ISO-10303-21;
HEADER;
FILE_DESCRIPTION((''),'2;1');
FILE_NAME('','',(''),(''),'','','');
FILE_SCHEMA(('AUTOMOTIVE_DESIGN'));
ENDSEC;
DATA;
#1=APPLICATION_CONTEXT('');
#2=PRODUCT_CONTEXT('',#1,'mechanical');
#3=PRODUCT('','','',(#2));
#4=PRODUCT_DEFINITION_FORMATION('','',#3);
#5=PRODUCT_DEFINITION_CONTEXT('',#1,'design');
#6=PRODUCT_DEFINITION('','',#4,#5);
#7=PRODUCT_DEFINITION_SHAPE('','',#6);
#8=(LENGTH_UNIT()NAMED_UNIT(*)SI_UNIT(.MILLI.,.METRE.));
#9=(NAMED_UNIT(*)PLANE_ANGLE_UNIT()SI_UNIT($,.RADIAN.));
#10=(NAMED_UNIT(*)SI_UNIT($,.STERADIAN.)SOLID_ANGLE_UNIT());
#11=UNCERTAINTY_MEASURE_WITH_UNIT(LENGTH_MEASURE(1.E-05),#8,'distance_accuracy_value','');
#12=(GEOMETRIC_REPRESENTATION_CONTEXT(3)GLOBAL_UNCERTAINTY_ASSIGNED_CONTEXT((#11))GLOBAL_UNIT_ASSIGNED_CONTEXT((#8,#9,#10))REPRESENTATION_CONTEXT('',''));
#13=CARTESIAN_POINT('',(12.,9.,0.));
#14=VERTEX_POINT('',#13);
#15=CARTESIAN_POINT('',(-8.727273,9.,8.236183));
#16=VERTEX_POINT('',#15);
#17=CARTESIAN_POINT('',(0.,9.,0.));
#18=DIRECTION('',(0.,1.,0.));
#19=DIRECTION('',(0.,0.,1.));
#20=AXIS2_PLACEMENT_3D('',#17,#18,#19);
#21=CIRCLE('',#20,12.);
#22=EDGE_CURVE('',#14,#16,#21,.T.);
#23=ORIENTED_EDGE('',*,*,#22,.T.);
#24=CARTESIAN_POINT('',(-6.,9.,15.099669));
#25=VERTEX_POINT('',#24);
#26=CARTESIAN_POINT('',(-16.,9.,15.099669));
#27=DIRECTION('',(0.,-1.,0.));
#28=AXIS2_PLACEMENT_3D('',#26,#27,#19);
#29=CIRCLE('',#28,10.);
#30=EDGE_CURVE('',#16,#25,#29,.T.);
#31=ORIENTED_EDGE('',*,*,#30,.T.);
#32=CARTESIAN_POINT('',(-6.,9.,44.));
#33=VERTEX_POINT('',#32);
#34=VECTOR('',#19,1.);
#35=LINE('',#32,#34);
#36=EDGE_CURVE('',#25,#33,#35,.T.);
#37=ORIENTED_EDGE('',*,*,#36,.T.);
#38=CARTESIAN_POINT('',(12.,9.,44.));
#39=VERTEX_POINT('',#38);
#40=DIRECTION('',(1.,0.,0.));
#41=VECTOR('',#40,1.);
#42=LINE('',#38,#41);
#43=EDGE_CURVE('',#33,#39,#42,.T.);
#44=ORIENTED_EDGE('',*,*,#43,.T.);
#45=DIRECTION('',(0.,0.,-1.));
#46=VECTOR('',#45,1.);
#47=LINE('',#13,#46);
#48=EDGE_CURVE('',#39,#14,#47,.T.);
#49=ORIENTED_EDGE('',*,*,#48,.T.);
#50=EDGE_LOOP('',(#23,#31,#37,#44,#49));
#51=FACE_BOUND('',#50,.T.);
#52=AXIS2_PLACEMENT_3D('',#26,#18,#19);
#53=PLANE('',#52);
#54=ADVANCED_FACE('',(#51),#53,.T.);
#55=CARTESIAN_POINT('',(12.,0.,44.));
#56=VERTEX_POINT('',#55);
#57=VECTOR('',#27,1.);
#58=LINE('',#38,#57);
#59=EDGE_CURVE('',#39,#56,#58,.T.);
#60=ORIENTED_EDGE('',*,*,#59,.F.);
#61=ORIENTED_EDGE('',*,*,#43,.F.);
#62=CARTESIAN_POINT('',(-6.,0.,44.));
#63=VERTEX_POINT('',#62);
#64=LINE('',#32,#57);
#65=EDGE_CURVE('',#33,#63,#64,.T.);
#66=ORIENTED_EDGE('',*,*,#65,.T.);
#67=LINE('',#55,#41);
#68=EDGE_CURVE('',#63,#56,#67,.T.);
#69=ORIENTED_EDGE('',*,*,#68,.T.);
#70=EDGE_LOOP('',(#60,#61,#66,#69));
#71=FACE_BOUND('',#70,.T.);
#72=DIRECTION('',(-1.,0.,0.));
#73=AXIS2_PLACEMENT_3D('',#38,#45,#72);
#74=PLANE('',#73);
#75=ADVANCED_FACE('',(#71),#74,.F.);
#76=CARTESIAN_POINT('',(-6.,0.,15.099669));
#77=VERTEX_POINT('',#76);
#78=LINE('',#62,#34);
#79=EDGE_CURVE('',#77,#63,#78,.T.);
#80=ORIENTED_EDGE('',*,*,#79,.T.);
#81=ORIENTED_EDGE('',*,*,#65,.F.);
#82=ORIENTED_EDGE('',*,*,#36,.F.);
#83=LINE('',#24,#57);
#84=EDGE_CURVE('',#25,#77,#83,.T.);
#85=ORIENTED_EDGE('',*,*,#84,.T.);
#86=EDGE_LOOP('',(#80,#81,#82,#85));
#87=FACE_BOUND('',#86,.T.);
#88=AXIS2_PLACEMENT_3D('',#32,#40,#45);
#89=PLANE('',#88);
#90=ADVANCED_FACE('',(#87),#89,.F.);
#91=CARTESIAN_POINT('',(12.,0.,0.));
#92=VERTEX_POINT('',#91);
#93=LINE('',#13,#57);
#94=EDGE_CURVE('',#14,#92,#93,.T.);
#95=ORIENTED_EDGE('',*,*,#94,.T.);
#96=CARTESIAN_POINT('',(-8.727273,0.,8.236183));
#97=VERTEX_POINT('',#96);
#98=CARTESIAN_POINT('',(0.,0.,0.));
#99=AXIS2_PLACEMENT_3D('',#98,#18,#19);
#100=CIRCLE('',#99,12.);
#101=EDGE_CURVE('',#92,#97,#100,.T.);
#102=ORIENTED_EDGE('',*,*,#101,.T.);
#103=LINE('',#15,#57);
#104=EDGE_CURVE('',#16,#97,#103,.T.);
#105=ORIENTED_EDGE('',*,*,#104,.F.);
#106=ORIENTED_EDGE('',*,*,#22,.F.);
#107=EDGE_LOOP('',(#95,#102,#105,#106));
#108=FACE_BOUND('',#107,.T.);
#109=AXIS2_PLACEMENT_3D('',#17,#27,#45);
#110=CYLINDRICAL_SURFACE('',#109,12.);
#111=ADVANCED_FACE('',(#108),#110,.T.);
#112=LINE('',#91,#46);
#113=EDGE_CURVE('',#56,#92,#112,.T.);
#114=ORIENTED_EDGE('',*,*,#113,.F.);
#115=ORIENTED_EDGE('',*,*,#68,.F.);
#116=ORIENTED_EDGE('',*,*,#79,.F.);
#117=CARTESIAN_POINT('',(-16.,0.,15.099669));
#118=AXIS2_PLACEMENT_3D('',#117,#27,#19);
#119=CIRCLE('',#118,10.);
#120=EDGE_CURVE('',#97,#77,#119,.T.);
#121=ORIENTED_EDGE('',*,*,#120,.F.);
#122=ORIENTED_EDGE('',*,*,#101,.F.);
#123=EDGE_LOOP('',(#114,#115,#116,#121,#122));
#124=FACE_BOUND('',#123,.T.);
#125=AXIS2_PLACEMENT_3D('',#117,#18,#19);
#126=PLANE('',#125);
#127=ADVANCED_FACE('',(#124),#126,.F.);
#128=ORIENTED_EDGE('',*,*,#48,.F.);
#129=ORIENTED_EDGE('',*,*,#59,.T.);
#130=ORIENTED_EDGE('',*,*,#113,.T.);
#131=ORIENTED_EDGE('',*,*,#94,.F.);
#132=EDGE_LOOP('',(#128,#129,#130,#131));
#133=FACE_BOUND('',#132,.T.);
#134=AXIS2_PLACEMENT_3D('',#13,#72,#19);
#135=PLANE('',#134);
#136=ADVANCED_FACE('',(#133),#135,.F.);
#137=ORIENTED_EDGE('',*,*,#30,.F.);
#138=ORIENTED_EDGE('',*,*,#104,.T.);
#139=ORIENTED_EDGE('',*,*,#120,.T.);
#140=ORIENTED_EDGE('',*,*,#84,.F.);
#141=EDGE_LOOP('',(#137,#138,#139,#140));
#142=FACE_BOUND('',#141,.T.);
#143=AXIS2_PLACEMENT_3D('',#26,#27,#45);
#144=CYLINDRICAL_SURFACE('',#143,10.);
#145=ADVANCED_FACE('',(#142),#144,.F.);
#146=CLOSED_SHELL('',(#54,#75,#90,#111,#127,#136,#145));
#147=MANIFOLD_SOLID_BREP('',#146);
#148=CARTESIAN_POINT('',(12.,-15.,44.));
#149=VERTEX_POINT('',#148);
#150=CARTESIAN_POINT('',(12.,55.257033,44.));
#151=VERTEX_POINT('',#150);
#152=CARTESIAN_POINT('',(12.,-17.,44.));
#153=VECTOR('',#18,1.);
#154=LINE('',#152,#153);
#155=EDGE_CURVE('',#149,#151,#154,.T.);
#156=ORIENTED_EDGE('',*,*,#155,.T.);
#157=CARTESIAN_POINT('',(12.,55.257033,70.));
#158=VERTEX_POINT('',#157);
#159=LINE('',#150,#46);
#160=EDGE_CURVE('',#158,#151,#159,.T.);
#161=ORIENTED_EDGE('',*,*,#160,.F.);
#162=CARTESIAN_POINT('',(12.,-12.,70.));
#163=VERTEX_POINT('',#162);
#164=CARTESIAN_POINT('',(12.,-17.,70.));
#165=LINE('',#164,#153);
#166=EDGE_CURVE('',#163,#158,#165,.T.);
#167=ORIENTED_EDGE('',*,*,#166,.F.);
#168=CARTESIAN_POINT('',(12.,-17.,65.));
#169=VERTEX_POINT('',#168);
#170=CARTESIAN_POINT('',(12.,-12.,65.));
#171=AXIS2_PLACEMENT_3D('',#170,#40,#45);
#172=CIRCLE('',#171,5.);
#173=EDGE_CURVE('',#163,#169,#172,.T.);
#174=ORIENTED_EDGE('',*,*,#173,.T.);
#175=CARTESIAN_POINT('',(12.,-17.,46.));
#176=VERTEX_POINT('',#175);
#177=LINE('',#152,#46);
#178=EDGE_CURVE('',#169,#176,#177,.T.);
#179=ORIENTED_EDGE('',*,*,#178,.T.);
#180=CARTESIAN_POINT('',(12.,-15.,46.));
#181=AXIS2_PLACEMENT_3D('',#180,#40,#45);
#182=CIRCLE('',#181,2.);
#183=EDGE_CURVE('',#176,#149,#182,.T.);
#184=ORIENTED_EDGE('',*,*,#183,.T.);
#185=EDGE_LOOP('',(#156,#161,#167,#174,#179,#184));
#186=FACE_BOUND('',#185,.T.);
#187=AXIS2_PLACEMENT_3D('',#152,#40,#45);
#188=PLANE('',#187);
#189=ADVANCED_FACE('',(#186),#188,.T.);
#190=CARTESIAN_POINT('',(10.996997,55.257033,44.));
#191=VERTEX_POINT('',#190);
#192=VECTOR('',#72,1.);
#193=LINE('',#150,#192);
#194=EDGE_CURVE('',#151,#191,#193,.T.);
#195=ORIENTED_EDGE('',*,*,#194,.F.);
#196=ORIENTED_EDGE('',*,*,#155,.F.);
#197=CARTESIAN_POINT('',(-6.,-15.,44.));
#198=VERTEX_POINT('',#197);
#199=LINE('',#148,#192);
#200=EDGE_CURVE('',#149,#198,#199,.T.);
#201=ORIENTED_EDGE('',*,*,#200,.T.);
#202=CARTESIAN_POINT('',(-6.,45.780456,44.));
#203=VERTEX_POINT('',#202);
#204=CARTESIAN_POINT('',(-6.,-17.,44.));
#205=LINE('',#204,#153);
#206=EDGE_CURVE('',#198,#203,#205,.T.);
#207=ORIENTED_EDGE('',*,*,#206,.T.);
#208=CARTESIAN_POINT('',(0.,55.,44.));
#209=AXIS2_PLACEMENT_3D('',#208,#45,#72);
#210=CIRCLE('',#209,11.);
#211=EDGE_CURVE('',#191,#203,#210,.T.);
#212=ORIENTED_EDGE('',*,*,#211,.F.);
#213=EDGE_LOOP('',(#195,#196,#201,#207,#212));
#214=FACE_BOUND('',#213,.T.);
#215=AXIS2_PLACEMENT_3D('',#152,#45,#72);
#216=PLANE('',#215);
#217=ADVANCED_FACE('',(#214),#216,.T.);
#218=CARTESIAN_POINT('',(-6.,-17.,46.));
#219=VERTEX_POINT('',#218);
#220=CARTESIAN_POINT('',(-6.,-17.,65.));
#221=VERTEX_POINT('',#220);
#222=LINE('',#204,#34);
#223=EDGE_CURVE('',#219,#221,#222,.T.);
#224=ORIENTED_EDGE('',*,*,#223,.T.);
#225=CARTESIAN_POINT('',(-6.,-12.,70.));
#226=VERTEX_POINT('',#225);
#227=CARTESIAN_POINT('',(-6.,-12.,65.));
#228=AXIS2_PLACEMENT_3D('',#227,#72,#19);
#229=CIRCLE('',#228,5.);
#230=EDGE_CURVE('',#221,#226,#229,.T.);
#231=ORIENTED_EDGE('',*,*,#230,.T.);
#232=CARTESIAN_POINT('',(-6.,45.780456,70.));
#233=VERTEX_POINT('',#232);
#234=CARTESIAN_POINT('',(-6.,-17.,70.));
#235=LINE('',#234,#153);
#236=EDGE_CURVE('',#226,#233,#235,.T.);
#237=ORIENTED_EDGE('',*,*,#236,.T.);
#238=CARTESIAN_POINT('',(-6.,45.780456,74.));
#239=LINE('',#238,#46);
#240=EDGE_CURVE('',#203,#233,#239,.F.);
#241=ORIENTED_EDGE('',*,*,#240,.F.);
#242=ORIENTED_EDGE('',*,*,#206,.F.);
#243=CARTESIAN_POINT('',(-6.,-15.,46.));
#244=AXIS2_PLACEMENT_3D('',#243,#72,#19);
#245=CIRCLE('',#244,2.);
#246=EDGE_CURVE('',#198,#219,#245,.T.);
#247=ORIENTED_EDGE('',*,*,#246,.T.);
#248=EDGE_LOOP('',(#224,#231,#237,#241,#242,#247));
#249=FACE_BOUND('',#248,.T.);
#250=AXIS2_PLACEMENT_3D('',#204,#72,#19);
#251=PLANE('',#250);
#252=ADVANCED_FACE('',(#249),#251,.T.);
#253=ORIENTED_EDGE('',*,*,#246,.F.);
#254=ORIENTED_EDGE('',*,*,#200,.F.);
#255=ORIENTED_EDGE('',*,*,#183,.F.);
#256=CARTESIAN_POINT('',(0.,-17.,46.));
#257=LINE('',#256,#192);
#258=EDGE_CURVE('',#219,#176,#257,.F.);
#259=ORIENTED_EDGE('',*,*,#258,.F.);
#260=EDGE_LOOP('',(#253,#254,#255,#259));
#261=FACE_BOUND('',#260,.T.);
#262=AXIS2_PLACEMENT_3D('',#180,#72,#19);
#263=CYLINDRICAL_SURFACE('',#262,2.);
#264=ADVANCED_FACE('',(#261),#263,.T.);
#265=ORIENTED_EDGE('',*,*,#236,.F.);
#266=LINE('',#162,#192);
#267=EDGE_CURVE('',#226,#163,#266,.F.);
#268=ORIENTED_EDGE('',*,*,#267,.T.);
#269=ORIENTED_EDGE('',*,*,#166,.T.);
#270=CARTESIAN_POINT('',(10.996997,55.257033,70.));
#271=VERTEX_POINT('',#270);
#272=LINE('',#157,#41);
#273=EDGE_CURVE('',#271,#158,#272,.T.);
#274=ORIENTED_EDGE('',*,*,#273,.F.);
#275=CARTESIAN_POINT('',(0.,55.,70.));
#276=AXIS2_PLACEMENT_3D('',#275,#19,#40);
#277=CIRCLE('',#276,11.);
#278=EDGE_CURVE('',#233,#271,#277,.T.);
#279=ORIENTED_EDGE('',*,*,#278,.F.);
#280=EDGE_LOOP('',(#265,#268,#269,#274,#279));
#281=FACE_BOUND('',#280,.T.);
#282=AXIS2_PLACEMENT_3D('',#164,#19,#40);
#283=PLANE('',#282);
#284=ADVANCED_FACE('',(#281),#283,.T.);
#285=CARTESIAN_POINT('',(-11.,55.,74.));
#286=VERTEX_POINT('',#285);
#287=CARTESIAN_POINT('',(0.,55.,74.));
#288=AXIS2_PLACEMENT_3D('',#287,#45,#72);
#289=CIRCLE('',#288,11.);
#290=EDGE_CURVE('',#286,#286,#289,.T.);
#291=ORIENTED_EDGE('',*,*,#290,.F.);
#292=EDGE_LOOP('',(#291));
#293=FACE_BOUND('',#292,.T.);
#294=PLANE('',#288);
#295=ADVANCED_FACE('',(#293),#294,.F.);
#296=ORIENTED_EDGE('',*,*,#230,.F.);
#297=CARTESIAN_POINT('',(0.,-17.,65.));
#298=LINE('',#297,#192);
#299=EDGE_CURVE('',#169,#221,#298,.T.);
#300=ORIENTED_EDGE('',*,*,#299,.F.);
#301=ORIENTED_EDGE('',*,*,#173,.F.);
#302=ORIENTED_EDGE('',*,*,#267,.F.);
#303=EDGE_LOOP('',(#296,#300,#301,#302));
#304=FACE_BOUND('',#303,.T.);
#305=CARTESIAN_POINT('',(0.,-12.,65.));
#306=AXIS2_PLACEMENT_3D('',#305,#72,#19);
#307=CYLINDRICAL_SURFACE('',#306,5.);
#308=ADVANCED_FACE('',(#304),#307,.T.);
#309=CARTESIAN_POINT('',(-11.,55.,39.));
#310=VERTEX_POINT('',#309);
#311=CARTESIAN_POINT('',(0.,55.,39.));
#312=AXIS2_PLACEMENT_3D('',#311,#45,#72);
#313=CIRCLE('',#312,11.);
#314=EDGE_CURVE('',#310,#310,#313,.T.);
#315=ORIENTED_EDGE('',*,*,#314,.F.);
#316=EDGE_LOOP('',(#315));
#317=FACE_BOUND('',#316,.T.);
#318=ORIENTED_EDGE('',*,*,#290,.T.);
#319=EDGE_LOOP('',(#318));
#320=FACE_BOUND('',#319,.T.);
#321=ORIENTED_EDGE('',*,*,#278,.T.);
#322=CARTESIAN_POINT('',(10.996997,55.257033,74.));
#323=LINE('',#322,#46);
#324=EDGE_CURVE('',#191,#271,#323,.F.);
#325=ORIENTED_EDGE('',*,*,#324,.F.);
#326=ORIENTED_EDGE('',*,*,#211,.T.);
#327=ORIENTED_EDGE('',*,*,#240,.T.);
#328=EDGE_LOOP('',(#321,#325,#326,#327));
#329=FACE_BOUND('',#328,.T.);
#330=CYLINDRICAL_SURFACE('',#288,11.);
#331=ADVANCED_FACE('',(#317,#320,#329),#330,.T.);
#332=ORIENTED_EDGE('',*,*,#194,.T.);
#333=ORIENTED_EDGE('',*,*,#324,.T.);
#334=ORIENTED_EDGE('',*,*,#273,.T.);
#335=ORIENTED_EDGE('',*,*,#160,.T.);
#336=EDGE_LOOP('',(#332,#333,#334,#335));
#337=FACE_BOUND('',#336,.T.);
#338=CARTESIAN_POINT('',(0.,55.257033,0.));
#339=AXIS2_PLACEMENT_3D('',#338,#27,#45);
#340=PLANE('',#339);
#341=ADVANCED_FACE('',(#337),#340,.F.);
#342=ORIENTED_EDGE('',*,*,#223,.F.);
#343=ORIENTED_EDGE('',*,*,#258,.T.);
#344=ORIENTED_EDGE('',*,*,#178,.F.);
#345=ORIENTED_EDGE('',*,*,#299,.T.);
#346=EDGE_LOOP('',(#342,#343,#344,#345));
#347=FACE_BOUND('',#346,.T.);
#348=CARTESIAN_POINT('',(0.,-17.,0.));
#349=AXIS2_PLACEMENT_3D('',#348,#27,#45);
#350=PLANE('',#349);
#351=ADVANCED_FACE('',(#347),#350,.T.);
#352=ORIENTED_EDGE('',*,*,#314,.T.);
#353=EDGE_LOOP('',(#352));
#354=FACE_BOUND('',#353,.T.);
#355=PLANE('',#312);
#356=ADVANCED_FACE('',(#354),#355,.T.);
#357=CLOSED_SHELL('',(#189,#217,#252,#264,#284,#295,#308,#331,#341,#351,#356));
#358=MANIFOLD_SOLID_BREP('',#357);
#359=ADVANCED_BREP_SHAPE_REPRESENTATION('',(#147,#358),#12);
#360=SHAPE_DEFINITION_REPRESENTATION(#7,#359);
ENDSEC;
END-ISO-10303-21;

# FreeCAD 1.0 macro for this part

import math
import FreeCAD as App
import Part
import Sketcher
Q = App.Units.Quantity


def edges_at(feature, points):
    """Names of the edges that pass closest to the given points."""
    edges = feature.Shape.Edges
    near = lambda p: min(range(len(edges)), key=lambda i: edges[i].distToShape(Part.Vertex(*p))[0])
    return sorted({f"Edge{near(p) + 1}" for p in points})


def add_polygon(sketch, points):
    """Adds a closed chain of lines whose ends are joined by coincident constraints."""
    first, n = sketch.GeometryCount, len(points)
    for a, b in zip(points, points[1:] + points[:1]):
        sketch.addGeometry(Part.LineSegment(App.Vector(*a, 0), App.Vector(*b, 0)), False)
    for i in range(n):
        sketch.addConstraint(Sketcher.Constraint("Coincident", first + i, 2, first + (i + 1) % n, 1))

doc = App.newDocument("Part")
body = doc.addObject("PartDesign::Body", "Body")

sketch1 = doc.addObject("Sketcher::SketchObject", "Sketch")
body.addObject(sketch1)
sketch1.AttachmentSupport = (doc.XZ_Plane, [""])
sketch1.MapMode = "FlatFace"
sketch1.addGeometry(Part.LineSegment(App.Vector(12, 44, 0), App.Vector(12, 0, 0)), False)
sketch1.addGeometry(Part.ArcOfCircle(Part.Circle(App.Vector(0, 0, 0), App.Vector(0, 0, 1), 12), math.radians(137), math.radians(360)), False)
sketch1.addGeometry(Part.ArcOfCircle(Part.Circle(App.Vector(-16, 15, 0), App.Vector(0, 0, 1), 10), math.radians(-43), math.radians(0)), False)
sketch1.addGeometry(Part.LineSegment(App.Vector(-6, 15, 0), App.Vector(-6, 44, 0)), False)
sketch1.addGeometry(Part.LineSegment(App.Vector(-6, 44, 0), App.Vector(12, 44, 0)), False)
sketch1.addConstraint(Sketcher.Constraint("Tangent", 0, 2, 1, 2))
sketch1.addConstraint(Sketcher.Constraint("Tangent", 1, 1, 2, 1))
sketch1.addConstraint(Sketcher.Constraint("Tangent", 2, 2, 3, 1))
sketch1.addConstraint(Sketcher.Constraint("Coincident", 3, 2, 4, 1))
sketch1.addConstraint(Sketcher.Constraint("Coincident", 4, 2, 0, 1))
sketch1.addConstraint(Sketcher.Constraint("Vertical", 0))
sketch1.addConstraint(Sketcher.Constraint("Vertical", 3))
sketch1.addConstraint(Sketcher.Constraint("Horizontal", 4))
sketch1.addConstraint(Sketcher.Constraint("Coincident", 1, 3, -1, 1))
sketch1.addConstraint(Sketcher.Constraint("Radius", 1, Q("12 mm")))
sketch1.addConstraint(Sketcher.Constraint("Radius", 2, Q("10 mm")))
sketch1.addConstraint(Sketcher.Constraint("DistanceX", 4, 1, 4, 2, Q("18 mm")))
sketch1.addConstraint(Sketcher.Constraint("DistanceY", 0, 2, 0, 1, Q("44 mm")))
pad1 = doc.addObject("PartDesign::Pad", "Pad")
body.addObject(pad1)
pad1.Profile = sketch1
pad1.Length = 9
pad1.Reversed = True
body2 = doc.addObject("PartDesign::Body", "Body001")

sketch2 = doc.addObject("Sketcher::SketchObject", "Sketch001")
body2.addObject(sketch2)
sketch2.AttachmentSupport = (doc.getObject("XZ_Plane001"), [""])
sketch2.MapMode = "FlatFace"
sketch2.AttachmentOffset = App.Placement(App.Vector(0, 0, -9), App.Rotation())
add_polygon(sketch2, [(-6, 44), (-6, 70), (12, 70), (12, 44)])
sketch2.addConstraint(Sketcher.Constraint("Vertical", 0))
sketch2.addConstraint(Sketcher.Constraint("Horizontal", 1))
sketch2.addConstraint(Sketcher.Constraint("Vertical", 2))
sketch2.addConstraint(Sketcher.Constraint("Horizontal", 3))
sketch2.addConstraint(Sketcher.Constraint("DistanceX", 1, 1, 1, 2, Q("18 mm")))
sketch2.addConstraint(Sketcher.Constraint("DistanceY", 0, 1, 0, 2, Q("26 mm")))
sketch2.addConstraint(Sketcher.Constraint("DistanceX", 0, 2, -1, 1, Q("6 mm")))
sketch2.addConstraint(Sketcher.Constraint("DistanceY", -1, 1, 0, 2, Q("70 mm")))
pad2 = doc.addObject("PartDesign::Pad", "Pad001")
body2.addObject(pad2)
pad2.Profile = sketch2
pad2.Type = "TwoLengths"
pad2.Length = 46.257033
pad2.Length2 = 26
pad2.Reversed = True
doc.recompute()

fillet = doc.addObject("PartDesign::Fillet", "Fillet")
body2.addObject(fillet)
fillet.Base = (pad2, edges_at(pad2, [(3, -17, 44)]))
fillet.Radius = 2
doc.recompute()

fillet2 = doc.addObject("PartDesign::Fillet", "Fillet001")
body2.addObject(fillet2)
fillet2.Base = (fillet, edges_at(fillet, [(3, -17, 70)]))
fillet2.Radius = 5

sketch3 = doc.addObject("Sketcher::SketchObject", "Sketch002")
body2.addObject(sketch3)
sketch3.AttachmentSupport = (doc.getObject("XY_Plane001"), [""])
sketch3.MapMode = "FlatFace"
sketch3.AttachmentOffset = App.Placement(App.Vector(0, 0, 44), App.Rotation())
sketch3.addGeometry(Part.Circle(App.Vector(0, 55, 0), App.Vector(0, 0, 1), 11), False)
sketch3.addConstraint(Sketcher.Constraint("PointOnObject", 0, 3, -2))
sketch3.addConstraint(Sketcher.Constraint("Diameter", 0, Q("22 mm")))
sketch3.addConstraint(Sketcher.Constraint("DistanceY", -1, 1, 0, 3, Q("55 mm")))
pad3 = doc.addObject("PartDesign::Pad", "Pad002")
body2.addObject(pad3)
pad3.Profile = sketch3
pad3.Type = "TwoLengths"
pad3.Length = 5
pad3.Length2 = 30
pad3.Reversed = True

doc.recompute()
